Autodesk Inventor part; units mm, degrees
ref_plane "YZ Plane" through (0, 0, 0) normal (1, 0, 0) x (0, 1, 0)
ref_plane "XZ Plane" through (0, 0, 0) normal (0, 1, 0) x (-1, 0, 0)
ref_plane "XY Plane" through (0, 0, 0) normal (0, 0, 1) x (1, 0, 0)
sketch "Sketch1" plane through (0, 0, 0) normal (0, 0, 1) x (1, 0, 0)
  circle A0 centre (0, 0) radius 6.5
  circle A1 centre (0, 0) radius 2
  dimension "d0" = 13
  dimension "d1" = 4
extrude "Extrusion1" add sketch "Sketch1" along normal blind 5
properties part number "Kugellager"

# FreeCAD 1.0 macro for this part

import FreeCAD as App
import Part
import Sketcher
from FreeCAD import Vector
Q = App.Units.Quantity

doc = App.newDocument("Part")
body = doc.addObject("PartDesign::Body", "Body")

sketch1 = body.newObject("Sketcher::SketchObject", "Sketch")
sketch1.AttachmentSupport = (doc.getObject("XY_Plane"), [""])
sketch1.MapMode = "FlatFace"
sketch1.addGeometry(Part.Circle(Vector(0, 0, 0), Vector(0, 0, 1), 6.5), False)
sketch1.addGeometry(Part.Circle(Vector(0, 0, 0), Vector(0, 0, 1), 2), False)
sketch1.addConstraint(Sketcher.Constraint("Coincident", 0, 3, -1, 1))
sketch1.addConstraint(Sketcher.Constraint("Coincident", 1, 3, -1, 1))
sketch1.addConstraint(Sketcher.Constraint("Diameter", 0, Q("13 mm")))
sketch1.addConstraint(Sketcher.Constraint("Diameter", 1, Q("4 mm")))
pad1 = body.newObject("PartDesign::Pad", "Pad")
pad1.Profile = sketch1
pad1.Length = 5

doc.recompute()
